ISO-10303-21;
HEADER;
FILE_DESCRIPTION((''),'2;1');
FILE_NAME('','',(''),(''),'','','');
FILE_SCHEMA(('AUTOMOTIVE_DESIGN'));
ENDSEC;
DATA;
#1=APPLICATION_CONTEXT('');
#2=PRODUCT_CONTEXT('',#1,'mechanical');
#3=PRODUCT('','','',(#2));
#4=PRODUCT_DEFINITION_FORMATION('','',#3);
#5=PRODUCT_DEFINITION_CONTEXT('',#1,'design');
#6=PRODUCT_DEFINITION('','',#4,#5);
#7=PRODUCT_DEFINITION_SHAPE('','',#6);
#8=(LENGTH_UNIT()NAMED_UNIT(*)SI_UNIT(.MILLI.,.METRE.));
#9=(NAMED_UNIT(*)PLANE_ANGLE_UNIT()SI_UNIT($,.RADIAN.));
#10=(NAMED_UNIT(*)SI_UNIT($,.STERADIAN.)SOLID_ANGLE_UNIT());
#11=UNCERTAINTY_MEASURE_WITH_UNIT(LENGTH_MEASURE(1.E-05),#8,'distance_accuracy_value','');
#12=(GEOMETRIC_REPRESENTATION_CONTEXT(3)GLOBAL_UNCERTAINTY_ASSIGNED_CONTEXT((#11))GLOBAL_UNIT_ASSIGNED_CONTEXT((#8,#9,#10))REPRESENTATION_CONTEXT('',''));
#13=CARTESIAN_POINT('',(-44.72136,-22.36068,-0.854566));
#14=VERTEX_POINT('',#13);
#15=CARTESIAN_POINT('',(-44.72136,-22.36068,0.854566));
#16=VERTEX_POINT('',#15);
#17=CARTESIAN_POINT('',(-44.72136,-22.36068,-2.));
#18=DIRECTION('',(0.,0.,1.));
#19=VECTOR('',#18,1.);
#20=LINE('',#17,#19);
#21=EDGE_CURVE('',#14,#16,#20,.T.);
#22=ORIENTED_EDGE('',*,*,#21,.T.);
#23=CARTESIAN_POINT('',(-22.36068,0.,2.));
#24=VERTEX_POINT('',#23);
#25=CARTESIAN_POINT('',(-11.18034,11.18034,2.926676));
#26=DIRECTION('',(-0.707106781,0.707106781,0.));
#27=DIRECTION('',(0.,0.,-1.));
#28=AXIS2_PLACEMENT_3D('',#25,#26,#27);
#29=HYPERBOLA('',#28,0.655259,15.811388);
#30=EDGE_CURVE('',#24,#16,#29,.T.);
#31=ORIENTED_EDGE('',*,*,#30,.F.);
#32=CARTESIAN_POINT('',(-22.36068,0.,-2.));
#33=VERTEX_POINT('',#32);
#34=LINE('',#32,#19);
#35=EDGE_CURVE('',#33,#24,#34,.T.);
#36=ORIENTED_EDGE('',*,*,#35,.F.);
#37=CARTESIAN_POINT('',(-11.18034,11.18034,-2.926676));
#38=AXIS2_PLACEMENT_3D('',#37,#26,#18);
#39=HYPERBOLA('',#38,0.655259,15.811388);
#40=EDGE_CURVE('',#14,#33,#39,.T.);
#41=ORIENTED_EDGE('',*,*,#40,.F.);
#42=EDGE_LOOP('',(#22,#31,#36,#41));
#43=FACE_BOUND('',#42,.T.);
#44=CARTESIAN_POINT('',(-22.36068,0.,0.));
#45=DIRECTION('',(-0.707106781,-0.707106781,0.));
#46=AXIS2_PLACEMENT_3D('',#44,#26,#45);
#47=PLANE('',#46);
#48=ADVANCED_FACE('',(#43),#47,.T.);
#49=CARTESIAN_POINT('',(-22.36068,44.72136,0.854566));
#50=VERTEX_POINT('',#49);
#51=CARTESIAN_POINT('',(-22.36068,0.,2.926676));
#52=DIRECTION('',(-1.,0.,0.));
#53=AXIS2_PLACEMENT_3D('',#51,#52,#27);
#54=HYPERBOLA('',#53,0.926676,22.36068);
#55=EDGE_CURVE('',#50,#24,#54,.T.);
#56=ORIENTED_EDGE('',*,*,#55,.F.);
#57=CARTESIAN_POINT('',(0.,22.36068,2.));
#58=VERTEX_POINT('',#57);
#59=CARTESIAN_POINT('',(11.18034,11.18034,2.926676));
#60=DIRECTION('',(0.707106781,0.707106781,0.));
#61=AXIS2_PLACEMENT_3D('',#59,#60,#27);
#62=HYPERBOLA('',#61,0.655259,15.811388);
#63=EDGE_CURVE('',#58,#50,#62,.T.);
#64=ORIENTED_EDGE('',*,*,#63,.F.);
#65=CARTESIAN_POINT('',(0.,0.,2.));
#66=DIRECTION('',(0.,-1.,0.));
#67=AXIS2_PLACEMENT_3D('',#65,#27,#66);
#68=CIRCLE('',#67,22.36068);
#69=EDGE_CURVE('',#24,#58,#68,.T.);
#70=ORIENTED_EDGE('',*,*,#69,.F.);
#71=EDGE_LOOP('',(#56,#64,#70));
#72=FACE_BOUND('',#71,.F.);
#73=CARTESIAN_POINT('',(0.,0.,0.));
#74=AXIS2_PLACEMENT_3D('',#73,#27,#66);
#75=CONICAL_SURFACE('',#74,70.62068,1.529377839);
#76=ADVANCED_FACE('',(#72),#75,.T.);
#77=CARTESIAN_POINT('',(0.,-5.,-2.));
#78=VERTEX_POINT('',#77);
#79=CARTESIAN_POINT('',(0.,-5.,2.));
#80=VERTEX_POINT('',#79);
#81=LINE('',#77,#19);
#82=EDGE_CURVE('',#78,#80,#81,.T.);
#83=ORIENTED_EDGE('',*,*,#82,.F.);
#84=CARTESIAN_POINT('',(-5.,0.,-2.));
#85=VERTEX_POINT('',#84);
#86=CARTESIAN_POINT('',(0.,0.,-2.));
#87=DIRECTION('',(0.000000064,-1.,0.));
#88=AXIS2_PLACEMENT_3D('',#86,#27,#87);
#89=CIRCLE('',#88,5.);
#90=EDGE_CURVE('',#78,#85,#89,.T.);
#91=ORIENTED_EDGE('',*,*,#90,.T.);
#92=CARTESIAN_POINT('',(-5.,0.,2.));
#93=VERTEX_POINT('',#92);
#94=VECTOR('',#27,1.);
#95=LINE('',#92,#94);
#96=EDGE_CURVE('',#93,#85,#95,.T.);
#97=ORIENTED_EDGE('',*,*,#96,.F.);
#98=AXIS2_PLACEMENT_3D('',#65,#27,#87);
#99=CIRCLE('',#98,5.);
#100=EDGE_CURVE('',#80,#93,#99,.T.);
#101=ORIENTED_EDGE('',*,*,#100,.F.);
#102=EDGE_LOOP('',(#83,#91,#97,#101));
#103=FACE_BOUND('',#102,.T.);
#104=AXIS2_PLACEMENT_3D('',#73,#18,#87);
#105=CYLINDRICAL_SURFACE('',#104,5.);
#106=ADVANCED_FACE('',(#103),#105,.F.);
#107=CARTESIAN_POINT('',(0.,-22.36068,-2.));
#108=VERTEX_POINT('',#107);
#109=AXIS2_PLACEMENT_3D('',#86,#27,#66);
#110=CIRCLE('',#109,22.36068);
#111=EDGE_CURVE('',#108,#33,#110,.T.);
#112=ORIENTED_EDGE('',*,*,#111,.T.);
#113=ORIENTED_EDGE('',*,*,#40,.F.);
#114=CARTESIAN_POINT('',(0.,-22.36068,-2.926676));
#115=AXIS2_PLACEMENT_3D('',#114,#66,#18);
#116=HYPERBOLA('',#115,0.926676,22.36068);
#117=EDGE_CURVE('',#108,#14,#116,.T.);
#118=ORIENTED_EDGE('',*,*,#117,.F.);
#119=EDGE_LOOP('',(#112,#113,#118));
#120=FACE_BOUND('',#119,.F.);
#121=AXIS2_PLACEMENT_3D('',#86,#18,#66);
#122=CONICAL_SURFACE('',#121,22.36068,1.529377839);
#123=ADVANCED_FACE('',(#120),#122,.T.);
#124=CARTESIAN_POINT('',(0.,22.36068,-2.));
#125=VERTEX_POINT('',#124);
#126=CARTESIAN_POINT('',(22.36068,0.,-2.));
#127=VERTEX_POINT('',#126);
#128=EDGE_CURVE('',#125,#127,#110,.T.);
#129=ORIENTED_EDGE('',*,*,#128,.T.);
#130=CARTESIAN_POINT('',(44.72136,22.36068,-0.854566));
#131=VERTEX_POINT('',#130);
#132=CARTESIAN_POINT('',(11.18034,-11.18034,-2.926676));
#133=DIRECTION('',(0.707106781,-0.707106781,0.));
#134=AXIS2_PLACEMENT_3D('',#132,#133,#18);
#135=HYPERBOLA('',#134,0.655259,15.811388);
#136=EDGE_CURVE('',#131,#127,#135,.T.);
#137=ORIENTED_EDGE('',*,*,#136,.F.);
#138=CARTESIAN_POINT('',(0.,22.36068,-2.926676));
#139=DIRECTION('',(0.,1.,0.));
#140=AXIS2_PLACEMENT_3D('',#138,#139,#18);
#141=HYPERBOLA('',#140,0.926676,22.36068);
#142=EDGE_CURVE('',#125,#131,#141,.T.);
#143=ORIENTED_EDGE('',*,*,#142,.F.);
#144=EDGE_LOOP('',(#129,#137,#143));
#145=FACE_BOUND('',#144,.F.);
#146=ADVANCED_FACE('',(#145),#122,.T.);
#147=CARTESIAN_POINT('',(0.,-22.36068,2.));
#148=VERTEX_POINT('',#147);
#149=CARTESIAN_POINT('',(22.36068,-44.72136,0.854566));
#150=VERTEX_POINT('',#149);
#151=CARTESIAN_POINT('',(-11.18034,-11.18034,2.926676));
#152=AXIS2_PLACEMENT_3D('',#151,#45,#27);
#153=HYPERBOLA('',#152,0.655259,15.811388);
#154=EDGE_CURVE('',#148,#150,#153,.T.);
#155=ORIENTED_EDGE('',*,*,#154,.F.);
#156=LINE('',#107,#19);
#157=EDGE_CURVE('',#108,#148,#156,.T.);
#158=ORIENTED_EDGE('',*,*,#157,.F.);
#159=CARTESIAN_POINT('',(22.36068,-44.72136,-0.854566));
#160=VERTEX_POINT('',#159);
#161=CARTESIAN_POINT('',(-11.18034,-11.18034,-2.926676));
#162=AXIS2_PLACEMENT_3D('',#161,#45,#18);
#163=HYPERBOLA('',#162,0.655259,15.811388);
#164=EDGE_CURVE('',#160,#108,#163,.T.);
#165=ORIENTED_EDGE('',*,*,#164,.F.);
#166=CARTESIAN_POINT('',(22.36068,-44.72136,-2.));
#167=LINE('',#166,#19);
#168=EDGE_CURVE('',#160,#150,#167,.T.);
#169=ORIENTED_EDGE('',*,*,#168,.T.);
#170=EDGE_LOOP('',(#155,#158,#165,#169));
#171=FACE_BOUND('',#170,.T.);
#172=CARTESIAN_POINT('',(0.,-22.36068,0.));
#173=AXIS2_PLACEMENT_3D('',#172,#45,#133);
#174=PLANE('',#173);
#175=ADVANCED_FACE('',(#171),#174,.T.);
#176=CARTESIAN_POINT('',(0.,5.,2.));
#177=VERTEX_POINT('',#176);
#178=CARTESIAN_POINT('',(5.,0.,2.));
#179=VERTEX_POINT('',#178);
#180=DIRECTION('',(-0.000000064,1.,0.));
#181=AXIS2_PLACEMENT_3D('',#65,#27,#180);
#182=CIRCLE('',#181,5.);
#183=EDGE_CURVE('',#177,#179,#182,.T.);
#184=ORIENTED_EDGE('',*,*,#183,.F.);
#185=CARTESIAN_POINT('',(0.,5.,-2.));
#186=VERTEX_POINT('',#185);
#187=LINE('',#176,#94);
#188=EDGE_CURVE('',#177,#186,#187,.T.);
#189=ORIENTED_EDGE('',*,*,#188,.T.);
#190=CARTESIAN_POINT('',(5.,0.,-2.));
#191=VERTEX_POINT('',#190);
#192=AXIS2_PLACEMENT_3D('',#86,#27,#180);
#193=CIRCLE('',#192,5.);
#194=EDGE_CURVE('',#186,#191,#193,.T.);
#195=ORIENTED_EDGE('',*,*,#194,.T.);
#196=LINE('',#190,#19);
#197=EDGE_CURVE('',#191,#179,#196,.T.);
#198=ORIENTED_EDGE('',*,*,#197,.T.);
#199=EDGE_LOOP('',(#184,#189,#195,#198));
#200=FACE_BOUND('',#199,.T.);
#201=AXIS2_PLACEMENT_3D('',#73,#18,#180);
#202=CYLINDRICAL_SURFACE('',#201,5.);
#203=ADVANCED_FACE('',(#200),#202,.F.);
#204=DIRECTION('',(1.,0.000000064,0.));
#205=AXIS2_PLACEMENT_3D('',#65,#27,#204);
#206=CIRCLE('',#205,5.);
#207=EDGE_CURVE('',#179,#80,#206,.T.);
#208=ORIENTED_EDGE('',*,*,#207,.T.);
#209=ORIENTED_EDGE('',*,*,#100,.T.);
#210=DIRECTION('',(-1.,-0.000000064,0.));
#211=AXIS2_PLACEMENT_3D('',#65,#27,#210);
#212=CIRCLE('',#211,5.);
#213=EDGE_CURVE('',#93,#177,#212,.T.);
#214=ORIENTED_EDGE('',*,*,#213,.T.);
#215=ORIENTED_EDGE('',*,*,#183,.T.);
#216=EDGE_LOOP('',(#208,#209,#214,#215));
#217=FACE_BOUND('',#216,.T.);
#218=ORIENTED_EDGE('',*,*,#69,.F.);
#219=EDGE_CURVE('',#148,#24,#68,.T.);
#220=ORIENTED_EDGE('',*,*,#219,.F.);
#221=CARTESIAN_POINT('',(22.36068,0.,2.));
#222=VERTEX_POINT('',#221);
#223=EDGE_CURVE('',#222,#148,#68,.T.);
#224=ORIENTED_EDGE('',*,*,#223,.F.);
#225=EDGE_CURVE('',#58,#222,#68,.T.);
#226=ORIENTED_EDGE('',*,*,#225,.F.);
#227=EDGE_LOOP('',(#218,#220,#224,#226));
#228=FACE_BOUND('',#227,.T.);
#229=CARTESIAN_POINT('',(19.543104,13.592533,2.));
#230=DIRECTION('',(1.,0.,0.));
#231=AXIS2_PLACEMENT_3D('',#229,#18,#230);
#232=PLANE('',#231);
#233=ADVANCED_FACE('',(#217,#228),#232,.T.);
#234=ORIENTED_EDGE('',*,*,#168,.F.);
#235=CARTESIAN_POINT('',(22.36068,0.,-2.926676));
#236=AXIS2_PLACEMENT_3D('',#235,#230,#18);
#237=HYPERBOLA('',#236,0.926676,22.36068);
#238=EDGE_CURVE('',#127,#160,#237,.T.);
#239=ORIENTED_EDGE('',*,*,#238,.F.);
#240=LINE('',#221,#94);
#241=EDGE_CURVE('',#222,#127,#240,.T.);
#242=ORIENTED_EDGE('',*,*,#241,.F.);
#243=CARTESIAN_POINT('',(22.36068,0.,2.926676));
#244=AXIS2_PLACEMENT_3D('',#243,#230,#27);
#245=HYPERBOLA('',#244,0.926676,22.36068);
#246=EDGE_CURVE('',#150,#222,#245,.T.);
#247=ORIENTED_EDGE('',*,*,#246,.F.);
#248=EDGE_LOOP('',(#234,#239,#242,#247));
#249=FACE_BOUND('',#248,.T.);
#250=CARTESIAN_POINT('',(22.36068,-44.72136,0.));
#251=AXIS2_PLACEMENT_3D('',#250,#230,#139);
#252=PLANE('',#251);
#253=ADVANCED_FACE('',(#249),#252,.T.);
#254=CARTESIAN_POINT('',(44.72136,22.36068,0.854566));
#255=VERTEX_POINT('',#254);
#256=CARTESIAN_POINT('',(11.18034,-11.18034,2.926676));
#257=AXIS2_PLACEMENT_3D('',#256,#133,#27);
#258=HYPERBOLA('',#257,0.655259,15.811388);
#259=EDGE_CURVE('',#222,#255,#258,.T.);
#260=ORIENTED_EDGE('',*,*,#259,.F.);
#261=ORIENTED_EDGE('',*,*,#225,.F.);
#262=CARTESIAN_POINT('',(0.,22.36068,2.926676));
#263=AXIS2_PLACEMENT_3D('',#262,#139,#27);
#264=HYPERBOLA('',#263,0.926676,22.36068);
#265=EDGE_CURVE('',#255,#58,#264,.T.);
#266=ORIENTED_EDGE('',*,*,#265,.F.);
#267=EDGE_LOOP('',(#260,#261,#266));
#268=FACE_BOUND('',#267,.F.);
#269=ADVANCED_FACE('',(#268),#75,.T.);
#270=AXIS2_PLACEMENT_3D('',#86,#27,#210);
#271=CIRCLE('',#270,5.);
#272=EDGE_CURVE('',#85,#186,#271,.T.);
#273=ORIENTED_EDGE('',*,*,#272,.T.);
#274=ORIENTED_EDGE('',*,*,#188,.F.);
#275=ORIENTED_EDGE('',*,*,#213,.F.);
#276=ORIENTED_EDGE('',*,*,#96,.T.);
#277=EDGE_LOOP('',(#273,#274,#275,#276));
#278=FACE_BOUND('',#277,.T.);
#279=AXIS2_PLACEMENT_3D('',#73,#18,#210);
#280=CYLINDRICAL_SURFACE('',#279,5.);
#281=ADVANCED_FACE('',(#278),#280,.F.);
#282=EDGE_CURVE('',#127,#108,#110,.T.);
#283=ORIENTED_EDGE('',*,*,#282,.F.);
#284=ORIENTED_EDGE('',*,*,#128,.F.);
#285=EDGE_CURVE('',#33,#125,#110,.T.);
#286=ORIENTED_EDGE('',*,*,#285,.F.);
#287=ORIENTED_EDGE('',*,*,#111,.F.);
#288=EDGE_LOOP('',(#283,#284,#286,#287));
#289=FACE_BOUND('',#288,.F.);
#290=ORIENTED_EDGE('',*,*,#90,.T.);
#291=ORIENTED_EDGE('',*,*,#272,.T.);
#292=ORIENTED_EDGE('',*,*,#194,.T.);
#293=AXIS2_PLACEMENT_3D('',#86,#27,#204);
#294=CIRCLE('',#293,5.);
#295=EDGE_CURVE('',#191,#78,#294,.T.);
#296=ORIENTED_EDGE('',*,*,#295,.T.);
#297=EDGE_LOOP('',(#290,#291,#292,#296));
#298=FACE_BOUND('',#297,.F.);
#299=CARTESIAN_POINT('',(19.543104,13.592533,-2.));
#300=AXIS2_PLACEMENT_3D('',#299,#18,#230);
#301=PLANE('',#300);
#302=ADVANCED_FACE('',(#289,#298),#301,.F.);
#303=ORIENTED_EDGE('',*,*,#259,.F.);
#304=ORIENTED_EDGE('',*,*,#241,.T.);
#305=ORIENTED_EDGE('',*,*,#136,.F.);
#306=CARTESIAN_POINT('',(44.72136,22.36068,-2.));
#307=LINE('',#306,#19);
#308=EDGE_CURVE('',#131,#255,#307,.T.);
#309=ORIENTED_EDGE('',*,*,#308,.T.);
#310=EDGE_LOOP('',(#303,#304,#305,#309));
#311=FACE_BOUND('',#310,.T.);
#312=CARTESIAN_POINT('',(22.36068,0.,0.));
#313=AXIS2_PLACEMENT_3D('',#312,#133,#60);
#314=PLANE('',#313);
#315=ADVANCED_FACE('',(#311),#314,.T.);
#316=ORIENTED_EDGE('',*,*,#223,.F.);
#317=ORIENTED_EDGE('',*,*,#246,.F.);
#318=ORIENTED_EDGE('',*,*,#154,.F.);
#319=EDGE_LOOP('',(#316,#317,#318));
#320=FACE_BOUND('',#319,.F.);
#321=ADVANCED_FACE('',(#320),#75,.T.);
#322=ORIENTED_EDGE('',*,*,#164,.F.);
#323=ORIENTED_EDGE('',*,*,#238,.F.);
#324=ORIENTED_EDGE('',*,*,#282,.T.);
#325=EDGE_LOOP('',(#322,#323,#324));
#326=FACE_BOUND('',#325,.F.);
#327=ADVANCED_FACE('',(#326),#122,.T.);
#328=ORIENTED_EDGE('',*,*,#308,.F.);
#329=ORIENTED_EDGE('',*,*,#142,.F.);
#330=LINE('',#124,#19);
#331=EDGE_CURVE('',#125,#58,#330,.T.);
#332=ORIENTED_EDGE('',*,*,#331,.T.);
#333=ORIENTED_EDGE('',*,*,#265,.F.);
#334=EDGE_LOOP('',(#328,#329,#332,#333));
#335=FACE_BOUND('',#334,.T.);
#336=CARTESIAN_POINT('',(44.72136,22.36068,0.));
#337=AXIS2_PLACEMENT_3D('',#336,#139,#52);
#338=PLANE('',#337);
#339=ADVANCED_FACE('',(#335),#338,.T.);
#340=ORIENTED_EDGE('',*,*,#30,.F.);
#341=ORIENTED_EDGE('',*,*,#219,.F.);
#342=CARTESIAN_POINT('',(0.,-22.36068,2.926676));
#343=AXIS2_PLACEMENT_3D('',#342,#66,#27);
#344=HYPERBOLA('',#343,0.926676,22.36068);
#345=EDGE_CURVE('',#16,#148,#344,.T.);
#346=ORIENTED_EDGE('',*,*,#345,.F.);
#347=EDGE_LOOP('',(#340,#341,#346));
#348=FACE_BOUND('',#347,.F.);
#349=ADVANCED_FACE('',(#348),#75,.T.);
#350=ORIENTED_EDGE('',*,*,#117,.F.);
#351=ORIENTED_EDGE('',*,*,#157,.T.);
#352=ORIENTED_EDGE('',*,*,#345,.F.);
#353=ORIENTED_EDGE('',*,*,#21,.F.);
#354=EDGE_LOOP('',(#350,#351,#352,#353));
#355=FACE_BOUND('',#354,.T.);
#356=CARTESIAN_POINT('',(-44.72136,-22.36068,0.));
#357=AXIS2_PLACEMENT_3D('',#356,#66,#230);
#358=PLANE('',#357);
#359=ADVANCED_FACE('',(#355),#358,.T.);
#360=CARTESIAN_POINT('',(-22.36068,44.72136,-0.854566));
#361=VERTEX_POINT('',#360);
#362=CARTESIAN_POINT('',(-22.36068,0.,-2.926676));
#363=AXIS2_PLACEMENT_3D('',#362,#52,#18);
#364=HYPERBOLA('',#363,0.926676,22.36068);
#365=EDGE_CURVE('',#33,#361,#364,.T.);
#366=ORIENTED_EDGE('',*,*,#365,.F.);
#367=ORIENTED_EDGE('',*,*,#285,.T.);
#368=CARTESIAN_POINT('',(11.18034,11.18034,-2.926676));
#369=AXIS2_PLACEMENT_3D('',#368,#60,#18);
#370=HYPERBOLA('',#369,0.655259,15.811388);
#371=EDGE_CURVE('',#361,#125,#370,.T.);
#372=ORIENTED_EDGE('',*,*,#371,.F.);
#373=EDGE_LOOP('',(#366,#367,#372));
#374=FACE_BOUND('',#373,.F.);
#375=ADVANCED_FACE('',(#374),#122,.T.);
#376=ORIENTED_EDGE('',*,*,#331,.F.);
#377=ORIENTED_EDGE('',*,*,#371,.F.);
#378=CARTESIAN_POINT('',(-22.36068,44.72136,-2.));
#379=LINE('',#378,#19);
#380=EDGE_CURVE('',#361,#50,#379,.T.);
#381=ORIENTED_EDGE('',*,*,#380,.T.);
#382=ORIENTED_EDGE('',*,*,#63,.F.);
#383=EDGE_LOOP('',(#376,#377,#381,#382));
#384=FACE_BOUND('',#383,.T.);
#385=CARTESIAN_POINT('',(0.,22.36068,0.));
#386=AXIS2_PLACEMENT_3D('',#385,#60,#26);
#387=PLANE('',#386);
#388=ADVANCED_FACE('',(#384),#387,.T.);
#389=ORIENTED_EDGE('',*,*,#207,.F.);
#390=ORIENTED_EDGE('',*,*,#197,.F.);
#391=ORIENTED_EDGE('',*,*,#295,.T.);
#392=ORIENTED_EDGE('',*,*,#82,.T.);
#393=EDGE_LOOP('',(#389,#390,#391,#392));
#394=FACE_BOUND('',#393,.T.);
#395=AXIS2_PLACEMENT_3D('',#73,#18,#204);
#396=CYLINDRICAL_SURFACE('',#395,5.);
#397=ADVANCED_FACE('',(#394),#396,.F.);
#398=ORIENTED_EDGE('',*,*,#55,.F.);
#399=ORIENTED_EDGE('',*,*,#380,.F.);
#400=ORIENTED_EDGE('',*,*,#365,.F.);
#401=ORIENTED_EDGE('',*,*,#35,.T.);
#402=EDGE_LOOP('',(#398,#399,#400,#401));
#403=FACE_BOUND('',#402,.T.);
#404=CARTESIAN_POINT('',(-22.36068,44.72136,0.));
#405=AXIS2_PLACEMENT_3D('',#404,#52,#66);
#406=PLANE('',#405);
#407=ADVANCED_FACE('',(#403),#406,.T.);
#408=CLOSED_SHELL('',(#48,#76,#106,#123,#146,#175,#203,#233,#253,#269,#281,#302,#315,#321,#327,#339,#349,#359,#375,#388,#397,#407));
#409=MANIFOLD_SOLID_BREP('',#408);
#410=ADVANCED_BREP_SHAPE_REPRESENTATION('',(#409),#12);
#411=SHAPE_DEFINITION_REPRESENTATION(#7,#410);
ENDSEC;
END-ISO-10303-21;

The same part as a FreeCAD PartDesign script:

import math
import FreeCAD as App
import Part
import Sketcher
from FreeCAD import Vector
Q = App.Units.Quantity


def add_polygon(sketch, points):
    """Adds a closed chain of lines whose ends are joined by coincident constraints."""
    first, n = sketch.GeometryCount, len(points)
    for a, b in zip(points, points[1:] + points[:1]):
        sketch.addGeometry(Part.LineSegment(App.Vector(*a, 0), App.Vector(*b, 0)), False)
    for i in range(n):
        sketch.addConstraint(Sketcher.Constraint("Coincident", first + i, 2, first + (i + 1) % n, 1))

doc = App.newDocument("Part")
body = doc.addObject("PartDesign::Body", "Body")

# Sketch on XY plane
sketch1 = body.newObject("Sketcher::SketchObject", "Sketch")
sketch1.AttachmentSupport = (doc.getObject("XY_Plane"), [""])
sketch1.MapMode = "FlatFace"
add_polygon(sketch1, [(22.4, 0), (44.7, 22.4), (0, 22.4), (-22.4, 44.7), (-22.4, 0), (-44.7, -22.4), (0, -22.4), (22.4, -44.7)])  # lines 0-7
sketch1.addGeometry(Part.ArcOfCircle(Part.Circle(Vector(0, 0, 0), Vector(0, 0, 1), 5), math.radians(0), math.radians(90)), False)  # 8
sketch1.addGeometry(Part.ArcOfCircle(Part.Circle(Vector(0, 0, 0), Vector(0, 0, 1), 5), math.radians(-90), math.radians(0)), False)  # 9
sketch1.addGeometry(Part.ArcOfCircle(Part.Circle(Vector(0, 0, 0), Vector(0, 0, 1), 5), math.radians(180), math.radians(270)), False)  # 10
sketch1.addGeometry(Part.ArcOfCircle(Part.Circle(Vector(0, 0, 0), Vector(0, 0, 1), 5), math.radians(90), math.radians(180)), False)  # 11
sketch1.addConstraint([
    Sketcher.Constraint("Tangent", 8, 1, 9, 2),
    Sketcher.Constraint("Tangent", 9, 1, 10, 2),
    Sketcher.Constraint("Tangent", 10, 1, 11, 2),
    Sketcher.Constraint("Tangent", 11, 1, 8, 2),
    Sketcher.Constraint("Horizontal", 1),
    Sketcher.Constraint("Vertical", 3),
    Sketcher.Constraint("Horizontal", 5),
    Sketcher.Constraint("Vertical", 7),
    Sketcher.Constraint("Coincident", 8, 3, -1, 1),
    Sketcher.Constraint("Equal", 8, 9),
    Sketcher.Constraint("Symmetric", 0, 2, 4, 2, -1, 1),
    Sketcher.Constraint("Symmetric", 2, 2, 6, 2, -1, 1),
    Sketcher.Constraint("PointOnObject", 1, 2, -2),
    Sketcher.Constraint("PointOnObject", 3, 2, -1),
    Sketcher.Constraint("PointOnObject", 5, 2, -2),
    Sketcher.Constraint("PointOnObject", 7, 2, -1),
    Sketcher.Constraint("PointOnObject", 8, 1, -1),
    Sketcher.Constraint("PointOnObject", 9, 1, -2),
    Sketcher.Constraint("PointOnObject", 10, 1, -1),
    Sketcher.Constraint("PointOnObject", 11, 1, -2),
    Sketcher.Constraint("Perpendicular", 0, 2),
    Sketcher.Constraint("Equal", 0, 2),
    Sketcher.Constraint("Radius", 8, Q("5 mm")),
    Sketcher.Constraint("Angle", 0, Q("45 deg")),
    Sketcher.Constraint("DistanceX", 1, 2, 1, 1, Q("44.72136 mm")),
])
pad1 = body.newObject("PartDesign::Pad", "Pad")
pad1.Profile = sketch1
pad1.Length = 4
pad1.Midplane = True

# Sketch on YZ plane
sketch2 = body.newObject("Sketcher::SketchObject", "Sketch001")
sketch2.AttachmentSupport = (doc.getObject("YZ_Plane"), [""])
sketch2.MapMode = "FlatFace"
add_polygon(sketch2, [(-70.6, 0), (-22.4, 2), (-70.6, 2)])  # lines 0-2
add_polygon(sketch2, [(-70.6, -2), (-22.4, -2), (-70.6, 0)])  # lines 3-5
sketch2.addConstraint([
    Sketcher.Constraint("Horizontal", 1),
    Sketcher.Constraint("Vertical", 2),
    Sketcher.Constraint("Horizontal", 3),
    Sketcher.Constraint("Vertical", 5),
    Sketcher.Constraint("Coincident", 4, 2, 2, 2),
    Sketcher.Constraint("Symmetric", 0, 2, 3, 2, -1),
    Sketcher.Constraint("PointOnObject", 2, 2, -1),
    Sketcher.Constraint("DistanceY", 2, 2, 2, 1, Q("2 mm")),
    Sketcher.Constraint("DistanceX", 1, 2, 1, 1, Q("48.26 mm")),
    Sketcher.Constraint("DistanceX", 0, 2, -1, 1, Q("22.36068 mm")),
])
groove = body.newObject("PartDesign::Groove", "Groove")
groove.Profile = sketch2
groove.ReferenceAxis = (sketch2, ["V_Axis"])
groove.Angle = 360

doc.recompute()
